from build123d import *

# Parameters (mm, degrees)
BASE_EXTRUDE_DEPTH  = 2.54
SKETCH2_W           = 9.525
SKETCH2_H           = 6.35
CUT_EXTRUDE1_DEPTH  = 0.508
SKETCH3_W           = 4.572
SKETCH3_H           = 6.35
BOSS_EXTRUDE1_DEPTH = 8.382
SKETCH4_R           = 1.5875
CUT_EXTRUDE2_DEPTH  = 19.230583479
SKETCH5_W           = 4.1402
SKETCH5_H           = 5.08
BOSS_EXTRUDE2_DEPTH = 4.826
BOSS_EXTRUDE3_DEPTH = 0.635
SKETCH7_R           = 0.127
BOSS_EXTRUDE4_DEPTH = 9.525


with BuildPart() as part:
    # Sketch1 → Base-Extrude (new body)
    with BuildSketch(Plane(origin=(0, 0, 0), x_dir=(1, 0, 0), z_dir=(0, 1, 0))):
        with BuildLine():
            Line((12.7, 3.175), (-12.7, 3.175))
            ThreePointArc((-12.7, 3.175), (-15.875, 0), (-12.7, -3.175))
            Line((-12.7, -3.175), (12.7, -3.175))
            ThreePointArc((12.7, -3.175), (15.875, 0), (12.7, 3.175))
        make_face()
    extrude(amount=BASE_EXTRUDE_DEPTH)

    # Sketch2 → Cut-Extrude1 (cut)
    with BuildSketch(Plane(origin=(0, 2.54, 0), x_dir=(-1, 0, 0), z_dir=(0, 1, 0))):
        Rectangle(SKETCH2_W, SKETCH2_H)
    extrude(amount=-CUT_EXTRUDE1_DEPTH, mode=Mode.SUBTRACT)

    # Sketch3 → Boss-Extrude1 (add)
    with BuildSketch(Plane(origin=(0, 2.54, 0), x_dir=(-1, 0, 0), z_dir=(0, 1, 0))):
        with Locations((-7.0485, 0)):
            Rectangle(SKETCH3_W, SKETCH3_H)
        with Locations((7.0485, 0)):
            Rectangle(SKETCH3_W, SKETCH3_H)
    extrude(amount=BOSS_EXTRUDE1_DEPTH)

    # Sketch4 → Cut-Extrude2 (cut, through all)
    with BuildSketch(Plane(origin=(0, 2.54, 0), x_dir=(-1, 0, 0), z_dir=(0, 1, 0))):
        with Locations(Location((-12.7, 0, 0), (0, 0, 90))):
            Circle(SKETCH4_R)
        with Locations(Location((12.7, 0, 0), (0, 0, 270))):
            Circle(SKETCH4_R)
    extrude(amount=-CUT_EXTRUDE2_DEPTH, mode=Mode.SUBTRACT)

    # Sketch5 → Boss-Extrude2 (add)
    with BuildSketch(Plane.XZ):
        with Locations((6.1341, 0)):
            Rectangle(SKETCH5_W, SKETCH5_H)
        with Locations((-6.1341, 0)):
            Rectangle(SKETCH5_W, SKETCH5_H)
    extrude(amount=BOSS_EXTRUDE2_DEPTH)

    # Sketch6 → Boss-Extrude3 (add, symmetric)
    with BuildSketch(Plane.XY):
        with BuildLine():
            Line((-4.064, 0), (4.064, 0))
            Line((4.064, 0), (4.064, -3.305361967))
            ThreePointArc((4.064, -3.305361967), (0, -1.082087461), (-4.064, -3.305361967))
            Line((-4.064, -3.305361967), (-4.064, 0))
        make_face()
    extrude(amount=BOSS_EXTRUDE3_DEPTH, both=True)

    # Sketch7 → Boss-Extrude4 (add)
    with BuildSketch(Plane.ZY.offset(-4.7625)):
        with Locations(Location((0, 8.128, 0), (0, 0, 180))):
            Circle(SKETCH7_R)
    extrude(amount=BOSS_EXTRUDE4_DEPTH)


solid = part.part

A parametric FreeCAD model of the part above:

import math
import FreeCAD as App
import Part
import Sketcher
from FreeCAD import Vector
Q = App.Units.Quantity


def add_polygon(sketch, points):
    """Adds a closed chain of lines whose ends are joined by coincident constraints."""
    first, n = sketch.GeometryCount, len(points)
    for a, b in zip(points, points[1:] + points[:1]):
        sketch.addGeometry(Part.LineSegment(App.Vector(*a, 0), App.Vector(*b, 0)), False)
    for i in range(n):
        sketch.addConstraint(Sketcher.Constraint("Coincident", first + i, 2, first + (i + 1) % n, 1))

doc = App.newDocument("Part")
body = doc.addObject("PartDesign::Body", "Body")

# Sketch on XZ plane
sketch1 = body.newObject("Sketcher::SketchObject", "Sketch")
sketch1.AttachmentSupport = (doc.getObject("XZ_Plane"), [""])
sketch1.MapMode = "FlatFace"
sketch1.addGeometry(Part.LineSegment(Vector(12.7, -3.2, 0), Vector(-12.7, -3.2, 0)), False)
sketch1.addGeometry(Part.ArcOfCircle(Part.Circle(Vector(-12.7, 0, 0), Vector(0, 0, 1), 3.2), math.radians(90), math.radians(270)), False)
sketch1.addGeometry(Part.LineSegment(Vector(-12.7, 3.2, 0), Vector(12.7, 3.2, 0)), False)
sketch1.addGeometry(Part.ArcOfCircle(Part.Circle(Vector(12.7, 0, 0), Vector(0, 0, 1), 3.2), math.radians(-90), math.radians(90)), False)
sketch1.addConstraint(Sketcher.Constraint("Tangent", 0, 2, 1, 2))
sketch1.addConstraint(Sketcher.Constraint("Tangent", 1, 1, 2, 1))
sketch1.addConstraint(Sketcher.Constraint("Tangent", 2, 2, 3, 2))
sketch1.addConstraint(Sketcher.Constraint("Tangent", 3, 1, 0, 1))
sketch1.addConstraint(Sketcher.Constraint("Horizontal", 0))
sketch1.addConstraint(Sketcher.Constraint("Horizontal", 2))
sketch1.addConstraint(Sketcher.Constraint("Symmetric", 1, 3, 3, 3, -1, 1))
sketch1.addConstraint(Sketcher.Constraint("DistanceX", 0, 2, 0, 1, Q("1 in")))
sketch1.addConstraint(Sketcher.Constraint("Radius", 1, Q("0.125 in")))
pad1 = body.newObject("PartDesign::Pad", "Pad")
pad1.Profile = sketch1
pad1.Length = Q("0.1 in")
pad1.Reversed = True

# Sketch on XZ plane
sketch2 = body.newObject("Sketcher::SketchObject", "Sketch001")
sketch2.AttachmentSupport = (doc.getObject("XZ_Plane"), [""])
sketch2.MapMode = "FlatFace"
sketch2.AttachmentOffset = App.Placement(Vector(0, 0, -0.1 * 25.4), App.Rotation())
add_polygon(sketch2, [(5, 3), (5, -3), (-5, -3), (-5, 3)])  # lines 0-3
sketch2.addConstraint(Sketcher.Constraint("Vertical", 0))
sketch2.addConstraint(Sketcher.Constraint("Horizontal", 1))
sketch2.addConstraint(Sketcher.Constraint("Vertical", 2))
sketch2.addConstraint(Sketcher.Constraint("Horizontal", 3))
sketch2.addConstraint(Sketcher.Constraint("Symmetric", 0, 2, 2, 2, -1, 1))
sketch2.addConstraint(Sketcher.Constraint("DistanceY", 0, 2, 0, 1, Q("0.25 in")))
sketch2.addConstraint(Sketcher.Constraint("DistanceX", 1, 2, 1, 1, Q("0.375 in")))
pocket1 = body.newObject("PartDesign::Pocket", "Pocket")
pocket1.Profile = sketch2
pocket1.Length = Q("0.02 in")
pocket1.Reversed = True

# Sketch on XZ plane
sketch3 = body.newObject("Sketcher::SketchObject", "Sketch002")
sketch3.AttachmentSupport = (doc.getObject("XZ_Plane"), [""])
sketch3.MapMode = "FlatFace"
sketch3.AttachmentOffset = App.Placement(Vector(0, 0, -0.1 * 25.4), App.Rotation())
add_polygon(sketch3, [(9.3, 3.2), (9.3, -3.2), (4.8, -3.2), (4.8, 3.2)])  # lines 0-3
add_polygon(sketch3, [(-4.8, 3.2), (-4.8, -3.2), (-9.3, -3.2), (-9.3, 3.2)])  # lines 4-7
sketch3.addConstraint(Sketcher.Constraint("Vertical", 0))
sketch3.addConstraint(Sketcher.Constraint("Horizontal", 1))
sketch3.addConstraint(Sketcher.Constraint("Vertical", 2))
sketch3.addConstraint(Sketcher.Constraint("Horizontal", 3))
sketch3.addConstraint(Sketcher.Constraint("Vertical", 4))
sketch3.addConstraint(Sketcher.Constraint("Horizontal", 5))
sketch3.addConstraint(Sketcher.Constraint("Vertical", 6))
sketch3.addConstraint(Sketcher.Constraint("Horizontal", 7))
sketch3.addConstraint(Sketcher.Constraint("Symmetric", 2, 2, 4, 2, -1, 1))
sketch3.addConstraint(Sketcher.Constraint("Symmetric", 0, 2, 6, 2, -1, 1))
sketch3.addConstraint(Sketcher.Constraint("Horizontal", 1, 2, 4, 2))
sketch3.addConstraint(Sketcher.Constraint("DistanceX", 1, 2, 1, 1, Q("0.18 in")))
sketch3.addConstraint(Sketcher.Constraint("DistanceY", 0, 2, 0, 1, Q("0.25 in")))
sketch3.addConstraint(Sketcher.Constraint("DistanceX", -1, 1, 1, 2, Q("0.1875 in")))
pad2 = body.newObject("PartDesign::Pad", "Pad001")
pad2.Profile = sketch3
pad2.Length = Q("0.33 in")
pad2.Reversed = True

# Sketch on XZ plane
sketch4 = body.newObject("Sketcher::SketchObject", "Sketch003")
sketch4.AttachmentSupport = (doc.getObject("XZ_Plane"), [""])
sketch4.MapMode = "FlatFace"
sketch4.AttachmentOffset = App.Placement(Vector(0, 0, -0.1 * 25.4), App.Rotation())
sketch4.addGeometry(Part.Circle(Vector(12.7, 0, 0), Vector(0, 0, 1), 1.6), False)
sketch4.addGeometry(Part.Circle(Vector(-12.7, 0, 0), Vector(0, 0, 1), 1.6), False)
sketch4.addConstraint(Sketcher.Constraint("Equal", 0, 1))
sketch4.addConstraint(Sketcher.Constraint("Symmetric", 0, 3, 1, 3, -1, 1))
sketch4.addConstraint(Sketcher.Constraint("PointOnObject", 0, 3, -1))
sketch4.addConstraint(Sketcher.Constraint("Diameter", 0, Q("0.125 in")))
sketch4.addConstraint(Sketcher.Constraint("DistanceX", 1, 3, 0, 3, Q("1 in")))
pocket2 = body.newObject("PartDesign::Pocket", "Pocket001")
pocket2.Profile = sketch4
pocket2.Type = "ThroughAll"
pocket2.Reversed = True

# Sketch on XZ plane
sketch5 = body.newObject("Sketcher::SketchObject", "Sketch004")
sketch5.AttachmentSupport = (doc.getObject("XZ_Plane"), [""])
sketch5.MapMode = "FlatFace"
add_polygon(sketch5, [(4.1, 2.5), (4.1, -2.5), (8.2, -2.5), (8.2, 2.5)])  # lines 0-3
add_polygon(sketch5, [(-8.2, 2.5), (-8.2, -2.5), (-4.1, -2.5), (-4.1, 2.5)])  # lines 4-7
sketch5.addConstraint(Sketcher.Constraint("Vertical", 0))
sketch5.addConstraint(Sketcher.Constraint("Horizontal", 1))
sketch5.addConstraint(Sketcher.Constraint("Vertical", 2))
sketch5.addConstraint(Sketcher.Constraint("Horizontal", 3))
sketch5.addConstraint(Sketcher.Constraint("Vertical", 4))
sketch5.addConstraint(Sketcher.Constraint("Horizontal", 5))
sketch5.addConstraint(Sketcher.Constraint("Vertical", 6))
sketch5.addConstraint(Sketcher.Constraint("Horizontal", 7))
sketch5.addConstraint(Sketcher.Constraint("Symmetric", 2, 2, 4, 2, -1, 1))
sketch5.addConstraint(Sketcher.Constraint("Symmetric", 0, 2, 6, 2, -1, 1))
sketch5.addConstraint(Sketcher.Constraint("Horizontal", 1, 2, 4, 2))
sketch5.addConstraint(Sketcher.Constraint("DistanceY", 0, 2, 0, 1, Q("0.2 in")))
sketch5.addConstraint(Sketcher.Constraint("DistanceX", 1, 1, 1, 2, Q("0.163 in")))
sketch5.addConstraint(Sketcher.Constraint("DistanceX", -1, 1, 0, 2, Q("0.16 in")))
pad3 = body.newObject("PartDesign::Pad", "Pad002")
pad3.Profile = sketch5
pad3.Length = Q("0.19 in")

# Sketch on XY plane
sketch6 = body.newObject("Sketcher::SketchObject", "Sketch005")
sketch6.AttachmentSupport = (doc.getObject("XY_Plane"), [""])
sketch6.MapMode = "FlatFace"
sketch6.addGeometry(Part.LineSegment(Vector(4.1, 0, 0), Vector(-4.1, 0, 0)), False)
sketch6.addGeometry(Part.LineSegment(Vector(-4.1, 0, 0), Vector(-4.1, -3.3, 0)), False)
sketch6.addGeometry(Part.ArcOfCircle(Part.Circle(Vector(0, -5.9, 0), Vector(0, 0, 1), 4.8), math.radians(33), math.radians(147)), False)
sketch6.addGeometry(Part.LineSegment(Vector(4.1, -3.3, 0), Vector(4.1, 0, 0)), False)
sketch6.addConstraint(Sketcher.Constraint("Coincident", 0, 2, 1, 1))
sketch6.addConstraint(Sketcher.Constraint("Coincident", 1, 2, 2, 2))
sketch6.addConstraint(Sketcher.Constraint("Coincident", 2, 1, 3, 1))
sketch6.addConstraint(Sketcher.Constraint("Coincident", 3, 2, 0, 1))
sketch6.addConstraint(Sketcher.Constraint("Horizontal", 0))
sketch6.addConstraint(Sketcher.Constraint("Vertical", 1))
sketch6.addConstraint(Sketcher.Constraint("Vertical", 3))
sketch6.addConstraint(Sketcher.Constraint("Symmetric", 0, 2, 3, 2, -1, 1))
sketch6.addConstraint(Sketcher.Constraint("PointOnObject", 2, 3, -2))
sketch6.addConstraint(Sketcher.Constraint("Radius", 2, Q("0.19 in")))
sketch6.addConstraint(Sketcher.Constraint("DistanceX", 0, 2, 0, 1, Q("0.32 in")))
sketch6.addConstraint(Sketcher.Constraint("DistanceY", 1, 2, 1, 1, 3.305362))
pad4 = body.newObject("PartDesign::Pad", "Pad003")
pad4.Profile = sketch6
pad4.Length = Q("0.05 in")
pad4.Midplane = True

# Sketch on YZ plane
sketch7 = body.newObject("Sketcher::SketchObject", "Sketch006")
sketch7.AttachmentSupport = (doc.getObject("YZ_Plane"), [""])
sketch7.MapMode = "FlatFace"
sketch7.AttachmentOffset = App.Placement(Vector(0, 0, 0.1875 * 25.4), App.Rotation())
sketch7.addGeometry(Part.Circle(Vector(8.13, 0, 0), Vector(0, 0, 1), 0.13), False)
sketch7.addConstraint(Sketcher.Constraint("PointOnObject", 0, 3, -1))
sketch7.addConstraint(Sketcher.Constraint("Diameter", 0, Q("0.01 in")))
sketch7.addConstraint(Sketcher.Constraint("DistanceX", -1, 1, 0, 3, Q("0.32 in")))
pad5 = body.newObject("PartDesign::Pad", "Pad004")
pad5.Profile = sketch7
pad5.Length = Q("0.375 in")
pad5.Reversed = True

doc.recompute()
